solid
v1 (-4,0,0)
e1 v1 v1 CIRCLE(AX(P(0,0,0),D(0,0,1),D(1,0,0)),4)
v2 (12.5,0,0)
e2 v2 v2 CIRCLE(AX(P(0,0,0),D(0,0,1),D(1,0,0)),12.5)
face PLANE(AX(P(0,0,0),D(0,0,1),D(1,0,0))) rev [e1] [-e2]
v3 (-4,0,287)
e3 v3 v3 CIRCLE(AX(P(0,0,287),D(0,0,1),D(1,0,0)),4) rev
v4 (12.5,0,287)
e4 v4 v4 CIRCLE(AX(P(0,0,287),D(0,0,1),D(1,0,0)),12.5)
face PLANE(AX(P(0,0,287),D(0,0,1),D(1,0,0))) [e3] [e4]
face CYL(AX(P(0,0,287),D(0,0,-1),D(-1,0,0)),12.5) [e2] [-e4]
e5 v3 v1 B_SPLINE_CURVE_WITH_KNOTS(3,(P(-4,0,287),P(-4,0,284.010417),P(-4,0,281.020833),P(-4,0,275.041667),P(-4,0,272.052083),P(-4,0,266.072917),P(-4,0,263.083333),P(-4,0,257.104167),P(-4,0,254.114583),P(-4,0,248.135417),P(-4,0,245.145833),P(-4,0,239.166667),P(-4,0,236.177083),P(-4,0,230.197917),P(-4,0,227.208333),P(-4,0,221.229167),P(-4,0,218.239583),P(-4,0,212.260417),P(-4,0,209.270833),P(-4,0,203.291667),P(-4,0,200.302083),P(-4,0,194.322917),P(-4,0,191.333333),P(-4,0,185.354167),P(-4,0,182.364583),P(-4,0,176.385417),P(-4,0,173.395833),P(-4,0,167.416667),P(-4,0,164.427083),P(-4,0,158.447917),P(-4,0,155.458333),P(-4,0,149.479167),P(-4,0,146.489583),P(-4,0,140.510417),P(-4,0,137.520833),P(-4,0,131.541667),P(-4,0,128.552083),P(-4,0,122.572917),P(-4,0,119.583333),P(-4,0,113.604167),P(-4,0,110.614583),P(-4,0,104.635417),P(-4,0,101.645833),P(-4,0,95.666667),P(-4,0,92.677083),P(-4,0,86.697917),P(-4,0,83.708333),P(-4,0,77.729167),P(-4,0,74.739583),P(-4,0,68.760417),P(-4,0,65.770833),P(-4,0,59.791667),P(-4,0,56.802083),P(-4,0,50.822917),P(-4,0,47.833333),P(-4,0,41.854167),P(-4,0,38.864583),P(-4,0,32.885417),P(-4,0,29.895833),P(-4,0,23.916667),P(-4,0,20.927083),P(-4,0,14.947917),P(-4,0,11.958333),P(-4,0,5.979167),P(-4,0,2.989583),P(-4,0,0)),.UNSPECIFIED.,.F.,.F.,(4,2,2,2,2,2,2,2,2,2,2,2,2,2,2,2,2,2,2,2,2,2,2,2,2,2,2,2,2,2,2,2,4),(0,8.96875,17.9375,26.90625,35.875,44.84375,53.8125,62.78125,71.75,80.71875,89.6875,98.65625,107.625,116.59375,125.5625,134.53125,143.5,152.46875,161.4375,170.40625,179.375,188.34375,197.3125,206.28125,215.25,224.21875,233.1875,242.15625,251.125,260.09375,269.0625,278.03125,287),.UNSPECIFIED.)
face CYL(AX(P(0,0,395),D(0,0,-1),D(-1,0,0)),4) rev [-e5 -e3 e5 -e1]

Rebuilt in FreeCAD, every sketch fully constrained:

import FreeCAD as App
import Part
import Sketcher

V = App.Vector
Q = App.Units.Quantity

doc = App.newDocument("Part")
body = doc.addObject("PartDesign::Body", "Body")

sketch1 = body.newObject("Sketcher::SketchObject", "Sketch")
sketch1.AttachmentSupport = (doc.getObject("XY_Plane"), [""])
sketch1.MapMode = "FlatFace"
sketch1.addGeometry(Part.Circle(V(0, 0, 0), V(0, 0, 1), 12), False)
sketch1.addConstraint([
    Sketcher.Constraint("Coincident", 0, 3, -1, 1),
    Sketcher.Constraint("Diameter", 0, Q("25 mm")),
])
pad1 = body.newObject("PartDesign::Pad", "Pad")
pad1.Profile = sketch1
pad1.Length = 287

sketch2 = body.newObject("Sketcher::SketchObject", "Sketch001")
sketch2.AttachmentSupport = (doc.getObject("XY_Plane"), [""])
sketch2.MapMode = "FlatFace"
sketch2.addGeometry(Part.Circle(V(0, 0, 0), V(0, 0, 1), 4), False)
sketch2.addConstraint([
    Sketcher.Constraint("Coincident", 0, 3, -1, 1),
    Sketcher.Constraint("Diameter", 0, Q("8 mm")),
])
pocket1 = body.newObject("PartDesign::Pocket", "Pocket")
pocket1.Profile = sketch2
pocket1.Length = 395
pocket1.Reversed = True

doc.recompute()
